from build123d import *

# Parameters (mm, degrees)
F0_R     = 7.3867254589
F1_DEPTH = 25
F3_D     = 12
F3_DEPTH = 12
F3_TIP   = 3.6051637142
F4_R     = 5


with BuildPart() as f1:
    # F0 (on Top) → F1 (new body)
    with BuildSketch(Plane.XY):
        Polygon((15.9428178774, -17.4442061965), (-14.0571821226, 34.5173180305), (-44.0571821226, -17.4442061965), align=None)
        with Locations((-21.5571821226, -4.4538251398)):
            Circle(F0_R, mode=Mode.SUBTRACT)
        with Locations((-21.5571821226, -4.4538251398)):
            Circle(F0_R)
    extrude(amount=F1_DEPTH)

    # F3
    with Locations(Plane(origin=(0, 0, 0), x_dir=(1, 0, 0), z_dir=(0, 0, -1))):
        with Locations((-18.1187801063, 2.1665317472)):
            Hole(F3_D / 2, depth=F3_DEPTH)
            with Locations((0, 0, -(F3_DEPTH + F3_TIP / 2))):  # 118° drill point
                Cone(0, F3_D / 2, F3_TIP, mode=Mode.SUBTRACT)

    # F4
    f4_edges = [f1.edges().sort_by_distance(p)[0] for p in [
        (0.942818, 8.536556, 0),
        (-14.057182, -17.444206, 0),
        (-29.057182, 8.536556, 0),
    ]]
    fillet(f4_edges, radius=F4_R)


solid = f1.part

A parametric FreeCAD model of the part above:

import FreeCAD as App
import Part
import Sketcher

V = App.Vector
Q = App.Units.Quantity


def edges_at(feature, points):
    """Names of the edges that pass closest to the given points."""
    edges = feature.Shape.Edges
    near = lambda p: min(range(len(edges)), key=lambda i: edges[i].distToShape(Part.Vertex(*p))[0])
    return sorted({f"Edge{near(p) + 1}" for p in points})

doc = App.newDocument("Part")
body = doc.addObject("PartDesign::Body", "Body")

sketch1 = body.newObject("Sketcher::SketchObject", "Sketch")
sketch1.AttachmentSupport = (doc.getObject("XY_Plane"), [""])
sketch1.MapMode = "FlatFace"
sketch1.addGeometry([
    Part.LineSegment(V(16, -17, 0), V(-14, 35, 0)),
    Part.LineSegment(V(-14, 35, 0), V(-44, -17, 0)),
    Part.LineSegment(V(-44, -17, 0), V(16, -17, 0)),
], False)
sketch1.addConstraint([
    Sketcher.Constraint("Coincident", 0, 2, 1, 1),
    Sketcher.Constraint("Coincident", 1, 2, 2, 1),
    Sketcher.Constraint("Coincident", 2, 2, 0, 1),
    Sketcher.Constraint("Horizontal", 2),
    Sketcher.Constraint("Equal", 0, 1),
    Sketcher.Constraint("DistanceX", 2, 1, 2, 2, 60.0),
    Sketcher.Constraint("Angle", 0, Q("120 deg")),
    Sketcher.Constraint("DistanceY", -1, 1, 0, 2, 34.517318),
    Sketcher.Constraint("DistanceX", 0, 2, -1, 1, 14.057182),
])
pad1 = body.newObject("PartDesign::Pad", "Pad")
pad1.Profile = sketch1
pad1.Length = 25

sketch2 = body.newObject("Sketcher::SketchObject", "Sketch001")
sketch2.AttachmentSupport = (doc.getObject("XY_Plane"), [""])
sketch2.MapMode = "FlatFace"
sketch2.addGeometry(Part.Circle(V(-18, -2, 0), V(0, 0, 1), 6), False)
sketch2.addConstraint([
    Sketcher.Constraint("Diameter", 0, 12.0),
    Sketcher.Constraint("DistanceX", 0, 3, -1, 1, 18.11878),
    Sketcher.Constraint("DistanceY", 0, 3, -1, 1, 2.166532),
])
doc.recompute()
hole = body.newObject("PartDesign::Hole", "Hole")
hole.Profile = sketch2
hole.ThreadType = "None"
hole.Diameter = 12
hole.DepthType = "Dimension"
hole.Depth = 12
hole.DrillPoint = "Angled"
hole.DrillPointAngle = 118
hole.Reversed = True
doc.recompute()

fillet = body.newObject("PartDesign::Fillet", "Fillet")
fillet.Base = (hole, edges_at(hole, [(0.943, 8.537, 0), (-14.057, -17.444, 0), (-29.057, 8.537, 0)]))
fillet.Radius = 5

doc.recompute()
